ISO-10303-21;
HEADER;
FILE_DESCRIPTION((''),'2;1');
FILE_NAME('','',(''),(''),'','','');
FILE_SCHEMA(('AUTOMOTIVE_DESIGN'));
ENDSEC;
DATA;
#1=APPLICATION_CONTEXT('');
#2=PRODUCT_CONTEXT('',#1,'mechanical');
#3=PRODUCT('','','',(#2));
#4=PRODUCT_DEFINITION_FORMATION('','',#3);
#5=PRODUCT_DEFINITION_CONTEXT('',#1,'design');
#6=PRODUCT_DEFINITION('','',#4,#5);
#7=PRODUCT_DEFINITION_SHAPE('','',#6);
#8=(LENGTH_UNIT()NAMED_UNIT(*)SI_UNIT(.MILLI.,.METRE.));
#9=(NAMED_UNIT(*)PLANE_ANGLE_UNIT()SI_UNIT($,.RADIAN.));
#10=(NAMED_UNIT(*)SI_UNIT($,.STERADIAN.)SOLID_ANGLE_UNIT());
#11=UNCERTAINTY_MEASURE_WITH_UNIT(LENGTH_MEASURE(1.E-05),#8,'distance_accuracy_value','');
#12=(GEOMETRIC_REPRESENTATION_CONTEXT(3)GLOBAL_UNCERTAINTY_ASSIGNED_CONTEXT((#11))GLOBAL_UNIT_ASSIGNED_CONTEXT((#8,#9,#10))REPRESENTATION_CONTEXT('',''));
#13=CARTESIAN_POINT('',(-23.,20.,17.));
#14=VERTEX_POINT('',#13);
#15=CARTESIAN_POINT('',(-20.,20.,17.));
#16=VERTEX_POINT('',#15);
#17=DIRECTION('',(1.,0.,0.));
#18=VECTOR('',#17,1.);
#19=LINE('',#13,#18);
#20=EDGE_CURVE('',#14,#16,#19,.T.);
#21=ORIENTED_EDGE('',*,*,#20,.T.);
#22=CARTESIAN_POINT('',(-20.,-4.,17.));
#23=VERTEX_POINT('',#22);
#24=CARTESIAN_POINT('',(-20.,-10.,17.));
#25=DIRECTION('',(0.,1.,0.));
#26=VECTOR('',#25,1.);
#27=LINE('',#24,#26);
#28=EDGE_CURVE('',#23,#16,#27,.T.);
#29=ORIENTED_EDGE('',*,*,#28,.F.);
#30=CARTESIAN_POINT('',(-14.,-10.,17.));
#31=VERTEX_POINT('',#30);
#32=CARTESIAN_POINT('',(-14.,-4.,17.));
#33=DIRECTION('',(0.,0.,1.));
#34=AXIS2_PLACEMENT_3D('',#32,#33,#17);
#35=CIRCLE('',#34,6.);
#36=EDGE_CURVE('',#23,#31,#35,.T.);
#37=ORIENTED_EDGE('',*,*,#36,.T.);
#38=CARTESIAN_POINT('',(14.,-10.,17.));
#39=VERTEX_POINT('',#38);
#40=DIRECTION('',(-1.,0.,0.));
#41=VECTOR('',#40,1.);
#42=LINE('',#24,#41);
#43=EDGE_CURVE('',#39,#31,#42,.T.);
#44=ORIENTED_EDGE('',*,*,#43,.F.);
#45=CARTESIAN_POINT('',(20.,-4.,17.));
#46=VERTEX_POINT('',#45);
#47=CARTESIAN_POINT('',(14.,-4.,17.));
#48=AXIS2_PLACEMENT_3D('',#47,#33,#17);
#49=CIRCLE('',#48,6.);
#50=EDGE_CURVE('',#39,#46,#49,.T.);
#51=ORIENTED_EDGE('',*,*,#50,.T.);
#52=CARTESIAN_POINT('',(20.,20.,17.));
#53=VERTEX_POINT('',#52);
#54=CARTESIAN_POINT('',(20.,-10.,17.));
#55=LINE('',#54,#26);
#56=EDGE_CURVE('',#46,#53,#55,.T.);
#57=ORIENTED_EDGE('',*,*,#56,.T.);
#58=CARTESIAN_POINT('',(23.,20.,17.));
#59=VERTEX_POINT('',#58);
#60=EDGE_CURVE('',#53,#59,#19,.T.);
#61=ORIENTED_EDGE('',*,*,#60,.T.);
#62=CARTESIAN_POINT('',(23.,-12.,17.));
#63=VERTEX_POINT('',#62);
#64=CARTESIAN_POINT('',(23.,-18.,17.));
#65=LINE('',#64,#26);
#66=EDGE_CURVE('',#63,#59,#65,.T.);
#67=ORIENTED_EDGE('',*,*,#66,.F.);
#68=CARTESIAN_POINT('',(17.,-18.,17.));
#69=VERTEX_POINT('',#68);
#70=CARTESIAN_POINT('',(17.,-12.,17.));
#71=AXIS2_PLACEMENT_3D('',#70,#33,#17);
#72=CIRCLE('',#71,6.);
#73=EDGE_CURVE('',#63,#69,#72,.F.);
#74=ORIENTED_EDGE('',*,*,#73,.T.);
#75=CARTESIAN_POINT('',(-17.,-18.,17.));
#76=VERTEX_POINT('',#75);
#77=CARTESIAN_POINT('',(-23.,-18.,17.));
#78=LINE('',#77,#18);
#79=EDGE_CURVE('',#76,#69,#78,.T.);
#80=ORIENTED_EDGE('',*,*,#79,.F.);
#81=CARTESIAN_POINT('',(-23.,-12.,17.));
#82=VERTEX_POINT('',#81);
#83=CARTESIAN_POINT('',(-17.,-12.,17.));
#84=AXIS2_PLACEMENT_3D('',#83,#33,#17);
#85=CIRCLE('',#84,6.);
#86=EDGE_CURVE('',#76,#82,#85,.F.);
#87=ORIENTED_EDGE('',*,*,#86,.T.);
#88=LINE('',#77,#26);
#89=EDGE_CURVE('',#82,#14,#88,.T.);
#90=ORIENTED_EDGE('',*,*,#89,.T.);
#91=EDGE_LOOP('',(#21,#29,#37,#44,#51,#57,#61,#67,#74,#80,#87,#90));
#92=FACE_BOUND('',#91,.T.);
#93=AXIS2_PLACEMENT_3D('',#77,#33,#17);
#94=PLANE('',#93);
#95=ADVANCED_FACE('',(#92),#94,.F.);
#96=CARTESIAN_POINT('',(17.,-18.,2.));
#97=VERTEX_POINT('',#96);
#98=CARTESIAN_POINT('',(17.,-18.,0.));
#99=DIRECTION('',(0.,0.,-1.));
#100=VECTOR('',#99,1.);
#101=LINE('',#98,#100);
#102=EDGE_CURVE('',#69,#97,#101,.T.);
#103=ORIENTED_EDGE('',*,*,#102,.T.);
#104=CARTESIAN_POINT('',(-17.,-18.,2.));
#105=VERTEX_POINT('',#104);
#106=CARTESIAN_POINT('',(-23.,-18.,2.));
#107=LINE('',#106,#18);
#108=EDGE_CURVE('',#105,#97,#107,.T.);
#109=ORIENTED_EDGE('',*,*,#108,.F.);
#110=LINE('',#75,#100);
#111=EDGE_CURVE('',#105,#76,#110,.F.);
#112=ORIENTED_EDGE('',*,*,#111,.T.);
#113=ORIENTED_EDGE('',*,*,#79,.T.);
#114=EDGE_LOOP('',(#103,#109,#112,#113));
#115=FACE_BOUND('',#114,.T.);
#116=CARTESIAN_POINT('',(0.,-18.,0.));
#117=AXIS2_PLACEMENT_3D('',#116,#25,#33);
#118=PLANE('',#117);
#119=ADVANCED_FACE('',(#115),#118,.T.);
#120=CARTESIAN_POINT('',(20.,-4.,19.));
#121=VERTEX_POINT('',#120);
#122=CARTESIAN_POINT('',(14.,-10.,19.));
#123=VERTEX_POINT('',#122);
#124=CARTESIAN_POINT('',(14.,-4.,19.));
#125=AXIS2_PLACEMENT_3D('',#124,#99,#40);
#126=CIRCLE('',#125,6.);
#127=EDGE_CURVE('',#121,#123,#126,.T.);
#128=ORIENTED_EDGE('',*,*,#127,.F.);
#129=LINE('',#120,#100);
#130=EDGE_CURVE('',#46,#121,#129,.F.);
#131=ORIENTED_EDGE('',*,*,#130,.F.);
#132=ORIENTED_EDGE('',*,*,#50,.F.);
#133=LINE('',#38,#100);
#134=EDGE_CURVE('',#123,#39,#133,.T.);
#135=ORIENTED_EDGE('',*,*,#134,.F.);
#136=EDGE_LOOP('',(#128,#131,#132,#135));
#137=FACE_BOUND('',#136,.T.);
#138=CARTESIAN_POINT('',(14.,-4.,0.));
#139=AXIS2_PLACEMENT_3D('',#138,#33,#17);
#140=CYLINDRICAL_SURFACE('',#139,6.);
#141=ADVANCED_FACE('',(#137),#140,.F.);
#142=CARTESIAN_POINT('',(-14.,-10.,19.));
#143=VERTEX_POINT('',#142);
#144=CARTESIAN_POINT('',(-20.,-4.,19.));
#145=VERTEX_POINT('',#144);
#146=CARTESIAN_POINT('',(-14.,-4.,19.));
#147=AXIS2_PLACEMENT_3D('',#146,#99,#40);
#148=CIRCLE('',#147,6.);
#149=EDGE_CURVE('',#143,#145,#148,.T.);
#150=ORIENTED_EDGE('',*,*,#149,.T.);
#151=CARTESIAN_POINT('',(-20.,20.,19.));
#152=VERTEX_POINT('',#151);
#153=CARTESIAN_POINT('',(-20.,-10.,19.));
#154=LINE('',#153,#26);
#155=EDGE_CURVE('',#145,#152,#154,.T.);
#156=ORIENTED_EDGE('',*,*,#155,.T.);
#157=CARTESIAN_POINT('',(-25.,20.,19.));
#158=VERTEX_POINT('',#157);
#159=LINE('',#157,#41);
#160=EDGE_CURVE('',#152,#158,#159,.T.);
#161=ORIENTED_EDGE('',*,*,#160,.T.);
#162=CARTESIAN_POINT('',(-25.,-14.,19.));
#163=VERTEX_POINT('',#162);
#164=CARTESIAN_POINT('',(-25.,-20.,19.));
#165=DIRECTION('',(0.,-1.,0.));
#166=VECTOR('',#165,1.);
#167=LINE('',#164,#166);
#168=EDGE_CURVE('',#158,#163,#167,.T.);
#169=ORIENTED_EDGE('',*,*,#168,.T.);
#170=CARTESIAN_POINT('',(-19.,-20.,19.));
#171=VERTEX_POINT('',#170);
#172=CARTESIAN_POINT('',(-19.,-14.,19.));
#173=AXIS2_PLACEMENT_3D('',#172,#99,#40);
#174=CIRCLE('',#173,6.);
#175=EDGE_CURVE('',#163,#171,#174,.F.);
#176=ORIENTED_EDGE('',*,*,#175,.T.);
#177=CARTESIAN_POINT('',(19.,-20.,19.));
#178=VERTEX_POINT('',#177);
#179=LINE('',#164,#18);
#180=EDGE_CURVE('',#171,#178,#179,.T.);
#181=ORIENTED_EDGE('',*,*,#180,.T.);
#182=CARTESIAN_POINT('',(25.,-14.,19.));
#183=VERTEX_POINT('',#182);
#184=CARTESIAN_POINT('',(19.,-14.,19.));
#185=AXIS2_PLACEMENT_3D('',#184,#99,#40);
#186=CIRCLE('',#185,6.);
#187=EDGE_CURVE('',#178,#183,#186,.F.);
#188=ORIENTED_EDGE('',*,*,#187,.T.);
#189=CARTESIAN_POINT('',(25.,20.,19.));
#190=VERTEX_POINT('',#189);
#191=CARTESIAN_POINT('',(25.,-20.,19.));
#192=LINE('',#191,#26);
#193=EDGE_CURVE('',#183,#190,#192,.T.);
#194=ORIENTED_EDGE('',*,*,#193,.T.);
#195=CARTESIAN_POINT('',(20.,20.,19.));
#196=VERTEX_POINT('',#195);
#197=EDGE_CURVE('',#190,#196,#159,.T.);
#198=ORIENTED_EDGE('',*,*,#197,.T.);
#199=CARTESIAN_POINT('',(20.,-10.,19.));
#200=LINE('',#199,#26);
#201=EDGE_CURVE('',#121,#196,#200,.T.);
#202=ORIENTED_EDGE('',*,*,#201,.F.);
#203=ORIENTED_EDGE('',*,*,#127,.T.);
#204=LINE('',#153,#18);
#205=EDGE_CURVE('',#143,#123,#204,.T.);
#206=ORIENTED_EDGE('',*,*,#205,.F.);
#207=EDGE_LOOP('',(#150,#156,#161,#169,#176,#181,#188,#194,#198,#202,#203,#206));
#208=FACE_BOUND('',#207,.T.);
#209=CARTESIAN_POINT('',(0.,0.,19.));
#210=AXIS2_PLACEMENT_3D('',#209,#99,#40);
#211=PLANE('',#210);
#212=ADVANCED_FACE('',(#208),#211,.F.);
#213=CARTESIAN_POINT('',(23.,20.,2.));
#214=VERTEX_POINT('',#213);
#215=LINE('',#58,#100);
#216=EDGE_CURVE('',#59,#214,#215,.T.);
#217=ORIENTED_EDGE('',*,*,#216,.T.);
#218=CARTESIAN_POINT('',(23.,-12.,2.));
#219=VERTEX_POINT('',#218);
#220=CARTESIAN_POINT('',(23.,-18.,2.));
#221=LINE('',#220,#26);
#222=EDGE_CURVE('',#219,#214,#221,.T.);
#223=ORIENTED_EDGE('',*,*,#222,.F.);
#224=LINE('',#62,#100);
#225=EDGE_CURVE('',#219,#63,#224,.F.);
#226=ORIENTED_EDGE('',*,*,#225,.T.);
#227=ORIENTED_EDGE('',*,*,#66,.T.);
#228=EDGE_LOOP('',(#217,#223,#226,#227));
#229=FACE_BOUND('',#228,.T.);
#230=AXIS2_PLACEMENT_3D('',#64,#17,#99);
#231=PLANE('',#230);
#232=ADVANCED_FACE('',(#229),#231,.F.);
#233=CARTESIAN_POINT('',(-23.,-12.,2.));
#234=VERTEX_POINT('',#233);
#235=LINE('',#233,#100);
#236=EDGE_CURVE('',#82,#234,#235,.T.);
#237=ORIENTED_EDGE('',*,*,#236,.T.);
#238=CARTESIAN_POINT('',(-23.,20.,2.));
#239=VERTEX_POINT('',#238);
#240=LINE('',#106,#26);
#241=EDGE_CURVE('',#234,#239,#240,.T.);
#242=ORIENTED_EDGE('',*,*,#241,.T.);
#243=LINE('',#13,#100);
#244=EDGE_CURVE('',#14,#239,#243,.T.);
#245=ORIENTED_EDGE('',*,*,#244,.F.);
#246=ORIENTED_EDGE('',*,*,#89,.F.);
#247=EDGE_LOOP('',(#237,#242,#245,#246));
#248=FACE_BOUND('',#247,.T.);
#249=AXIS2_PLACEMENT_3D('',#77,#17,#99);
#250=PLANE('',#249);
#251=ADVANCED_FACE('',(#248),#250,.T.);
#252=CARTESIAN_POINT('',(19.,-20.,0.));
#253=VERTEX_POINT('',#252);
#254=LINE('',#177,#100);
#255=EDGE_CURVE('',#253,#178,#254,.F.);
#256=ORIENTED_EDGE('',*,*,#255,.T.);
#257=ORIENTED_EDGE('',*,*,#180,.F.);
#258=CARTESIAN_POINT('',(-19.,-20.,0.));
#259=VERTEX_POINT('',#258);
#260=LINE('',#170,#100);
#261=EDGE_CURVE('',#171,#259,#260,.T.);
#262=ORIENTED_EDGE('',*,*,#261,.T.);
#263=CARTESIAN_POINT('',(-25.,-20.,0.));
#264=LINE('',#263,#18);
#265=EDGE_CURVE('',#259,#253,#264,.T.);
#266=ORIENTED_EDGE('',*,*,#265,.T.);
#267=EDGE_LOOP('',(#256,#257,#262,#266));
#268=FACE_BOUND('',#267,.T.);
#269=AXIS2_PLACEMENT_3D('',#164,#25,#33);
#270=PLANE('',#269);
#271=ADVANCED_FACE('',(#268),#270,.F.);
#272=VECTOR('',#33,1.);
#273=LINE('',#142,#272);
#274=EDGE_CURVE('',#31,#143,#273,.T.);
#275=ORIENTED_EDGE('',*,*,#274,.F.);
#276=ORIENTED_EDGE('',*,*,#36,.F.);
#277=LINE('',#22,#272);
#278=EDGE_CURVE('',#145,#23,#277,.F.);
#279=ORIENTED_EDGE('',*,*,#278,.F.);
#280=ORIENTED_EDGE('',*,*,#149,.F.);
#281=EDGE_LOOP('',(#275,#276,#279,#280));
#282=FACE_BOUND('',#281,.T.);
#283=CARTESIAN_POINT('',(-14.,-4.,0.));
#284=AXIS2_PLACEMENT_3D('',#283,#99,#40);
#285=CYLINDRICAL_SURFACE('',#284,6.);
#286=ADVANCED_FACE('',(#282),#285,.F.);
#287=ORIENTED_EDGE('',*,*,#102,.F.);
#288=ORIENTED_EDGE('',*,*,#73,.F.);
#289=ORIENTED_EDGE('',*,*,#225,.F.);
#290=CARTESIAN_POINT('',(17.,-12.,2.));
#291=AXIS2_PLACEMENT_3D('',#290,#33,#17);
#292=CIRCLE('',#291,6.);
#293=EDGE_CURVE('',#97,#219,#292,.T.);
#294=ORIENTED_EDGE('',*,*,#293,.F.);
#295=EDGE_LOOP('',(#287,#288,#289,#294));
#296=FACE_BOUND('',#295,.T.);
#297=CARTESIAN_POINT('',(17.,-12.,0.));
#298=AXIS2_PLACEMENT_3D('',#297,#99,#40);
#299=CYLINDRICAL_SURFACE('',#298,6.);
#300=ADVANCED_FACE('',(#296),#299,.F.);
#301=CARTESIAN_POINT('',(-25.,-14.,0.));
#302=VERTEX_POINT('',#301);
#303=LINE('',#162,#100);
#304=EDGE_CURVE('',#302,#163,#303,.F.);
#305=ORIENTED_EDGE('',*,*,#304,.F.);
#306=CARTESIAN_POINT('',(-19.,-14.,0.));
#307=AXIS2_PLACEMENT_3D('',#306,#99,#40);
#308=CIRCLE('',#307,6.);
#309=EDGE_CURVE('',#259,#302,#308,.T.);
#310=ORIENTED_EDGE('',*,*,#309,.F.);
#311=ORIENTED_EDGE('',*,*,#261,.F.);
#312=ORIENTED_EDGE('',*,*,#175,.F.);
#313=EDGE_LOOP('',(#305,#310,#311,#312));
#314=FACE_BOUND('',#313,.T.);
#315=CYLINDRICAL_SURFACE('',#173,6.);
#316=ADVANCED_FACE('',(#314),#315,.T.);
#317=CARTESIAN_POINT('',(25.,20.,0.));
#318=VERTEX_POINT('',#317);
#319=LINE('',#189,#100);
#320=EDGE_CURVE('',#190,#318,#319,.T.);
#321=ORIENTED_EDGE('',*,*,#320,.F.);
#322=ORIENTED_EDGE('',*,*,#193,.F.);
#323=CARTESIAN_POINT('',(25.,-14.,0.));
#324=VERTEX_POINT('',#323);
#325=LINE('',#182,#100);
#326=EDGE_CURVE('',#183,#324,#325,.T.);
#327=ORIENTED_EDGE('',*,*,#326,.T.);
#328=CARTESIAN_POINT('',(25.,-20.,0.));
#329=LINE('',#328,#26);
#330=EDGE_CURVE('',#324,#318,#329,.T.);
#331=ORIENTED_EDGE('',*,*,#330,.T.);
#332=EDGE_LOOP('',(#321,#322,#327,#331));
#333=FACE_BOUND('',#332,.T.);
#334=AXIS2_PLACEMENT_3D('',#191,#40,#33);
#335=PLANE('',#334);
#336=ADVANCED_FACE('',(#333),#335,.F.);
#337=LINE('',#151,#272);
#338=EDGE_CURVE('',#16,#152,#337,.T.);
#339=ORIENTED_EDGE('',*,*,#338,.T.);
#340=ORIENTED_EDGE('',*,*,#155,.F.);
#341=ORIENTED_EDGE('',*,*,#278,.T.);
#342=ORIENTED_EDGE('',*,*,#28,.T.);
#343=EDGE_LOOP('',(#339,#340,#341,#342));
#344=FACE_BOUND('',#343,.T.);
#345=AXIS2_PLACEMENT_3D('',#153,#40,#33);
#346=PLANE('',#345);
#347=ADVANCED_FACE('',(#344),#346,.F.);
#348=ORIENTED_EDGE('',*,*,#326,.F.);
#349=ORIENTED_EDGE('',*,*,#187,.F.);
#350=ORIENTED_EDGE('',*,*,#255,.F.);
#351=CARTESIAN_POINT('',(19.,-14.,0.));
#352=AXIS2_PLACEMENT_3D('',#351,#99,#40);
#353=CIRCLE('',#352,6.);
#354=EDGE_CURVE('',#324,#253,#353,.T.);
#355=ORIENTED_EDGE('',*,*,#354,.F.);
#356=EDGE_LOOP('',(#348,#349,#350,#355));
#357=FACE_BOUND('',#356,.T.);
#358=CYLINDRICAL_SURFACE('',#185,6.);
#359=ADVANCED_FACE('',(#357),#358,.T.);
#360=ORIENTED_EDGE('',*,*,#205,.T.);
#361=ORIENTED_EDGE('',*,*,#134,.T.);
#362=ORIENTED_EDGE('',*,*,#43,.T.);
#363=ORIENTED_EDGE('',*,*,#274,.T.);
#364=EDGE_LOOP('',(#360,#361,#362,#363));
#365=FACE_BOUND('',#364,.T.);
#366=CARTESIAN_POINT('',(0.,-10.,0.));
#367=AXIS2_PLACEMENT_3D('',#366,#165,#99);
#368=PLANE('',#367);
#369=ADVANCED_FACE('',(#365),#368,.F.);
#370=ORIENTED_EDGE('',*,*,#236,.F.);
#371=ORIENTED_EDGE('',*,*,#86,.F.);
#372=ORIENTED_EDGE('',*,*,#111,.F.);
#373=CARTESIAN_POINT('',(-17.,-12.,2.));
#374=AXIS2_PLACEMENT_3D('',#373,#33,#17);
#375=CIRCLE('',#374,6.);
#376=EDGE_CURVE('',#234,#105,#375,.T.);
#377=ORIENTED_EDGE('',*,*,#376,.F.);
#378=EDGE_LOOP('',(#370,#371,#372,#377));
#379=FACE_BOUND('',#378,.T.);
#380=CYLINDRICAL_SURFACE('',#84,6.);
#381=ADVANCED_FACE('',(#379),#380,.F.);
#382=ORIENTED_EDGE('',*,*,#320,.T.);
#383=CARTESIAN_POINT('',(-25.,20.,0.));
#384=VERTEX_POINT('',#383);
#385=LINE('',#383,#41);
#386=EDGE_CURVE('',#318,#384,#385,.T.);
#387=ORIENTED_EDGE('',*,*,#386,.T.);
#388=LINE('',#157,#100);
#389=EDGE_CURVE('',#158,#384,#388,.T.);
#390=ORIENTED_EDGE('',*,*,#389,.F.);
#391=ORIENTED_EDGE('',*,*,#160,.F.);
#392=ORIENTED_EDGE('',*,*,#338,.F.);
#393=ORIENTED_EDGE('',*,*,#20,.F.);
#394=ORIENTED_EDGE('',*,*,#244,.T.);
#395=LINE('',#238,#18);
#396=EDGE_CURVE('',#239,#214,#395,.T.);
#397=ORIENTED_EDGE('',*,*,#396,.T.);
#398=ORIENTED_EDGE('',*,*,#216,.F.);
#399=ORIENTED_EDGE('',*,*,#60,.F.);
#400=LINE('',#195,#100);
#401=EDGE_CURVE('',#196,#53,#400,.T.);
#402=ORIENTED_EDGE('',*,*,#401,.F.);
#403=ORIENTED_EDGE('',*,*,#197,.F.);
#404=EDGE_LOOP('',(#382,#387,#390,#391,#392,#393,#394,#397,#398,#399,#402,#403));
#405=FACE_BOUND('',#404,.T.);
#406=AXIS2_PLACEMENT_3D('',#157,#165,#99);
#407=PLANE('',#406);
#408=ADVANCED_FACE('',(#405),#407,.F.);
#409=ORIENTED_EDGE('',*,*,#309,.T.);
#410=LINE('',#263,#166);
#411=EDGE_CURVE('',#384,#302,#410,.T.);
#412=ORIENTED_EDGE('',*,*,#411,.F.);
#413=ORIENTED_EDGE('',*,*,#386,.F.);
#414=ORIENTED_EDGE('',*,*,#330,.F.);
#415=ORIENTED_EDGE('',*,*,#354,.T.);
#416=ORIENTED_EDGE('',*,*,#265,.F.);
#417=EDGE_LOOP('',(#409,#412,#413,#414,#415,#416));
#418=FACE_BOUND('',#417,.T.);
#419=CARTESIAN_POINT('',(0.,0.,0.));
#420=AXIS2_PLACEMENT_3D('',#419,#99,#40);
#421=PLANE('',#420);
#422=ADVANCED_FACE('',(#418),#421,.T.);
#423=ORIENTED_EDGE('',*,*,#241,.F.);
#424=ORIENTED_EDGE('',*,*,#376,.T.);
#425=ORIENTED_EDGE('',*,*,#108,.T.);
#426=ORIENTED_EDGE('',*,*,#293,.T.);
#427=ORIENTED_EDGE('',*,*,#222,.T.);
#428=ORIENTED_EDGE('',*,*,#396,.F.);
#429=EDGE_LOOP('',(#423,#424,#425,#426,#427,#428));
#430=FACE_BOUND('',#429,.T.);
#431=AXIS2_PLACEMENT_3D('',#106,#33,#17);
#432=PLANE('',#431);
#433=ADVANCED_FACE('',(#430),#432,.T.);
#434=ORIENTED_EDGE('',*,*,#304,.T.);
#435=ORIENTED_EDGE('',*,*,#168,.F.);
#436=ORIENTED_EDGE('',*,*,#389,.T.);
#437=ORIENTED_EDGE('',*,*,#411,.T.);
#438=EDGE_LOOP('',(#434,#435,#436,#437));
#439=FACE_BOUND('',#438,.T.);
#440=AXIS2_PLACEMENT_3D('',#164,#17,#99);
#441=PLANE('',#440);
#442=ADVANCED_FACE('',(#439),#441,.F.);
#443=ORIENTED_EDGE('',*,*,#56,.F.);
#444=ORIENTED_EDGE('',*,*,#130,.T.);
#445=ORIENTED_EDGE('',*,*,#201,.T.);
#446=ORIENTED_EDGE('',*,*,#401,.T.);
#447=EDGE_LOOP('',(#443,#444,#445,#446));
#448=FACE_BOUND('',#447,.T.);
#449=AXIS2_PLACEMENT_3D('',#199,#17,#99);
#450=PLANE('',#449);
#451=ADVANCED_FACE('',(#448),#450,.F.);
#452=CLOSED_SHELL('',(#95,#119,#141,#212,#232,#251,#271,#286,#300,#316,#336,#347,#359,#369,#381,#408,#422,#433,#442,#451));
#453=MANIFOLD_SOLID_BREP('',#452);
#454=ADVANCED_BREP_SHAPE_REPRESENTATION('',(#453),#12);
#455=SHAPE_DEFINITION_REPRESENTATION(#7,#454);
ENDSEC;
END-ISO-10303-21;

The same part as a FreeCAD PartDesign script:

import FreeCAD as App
import Part
import Sketcher
from FreeCAD import Vector
Q = App.Units.Quantity


def edges_at(feature, points):
    """Names of the edges that pass closest to the given points."""
    edges = feature.Shape.Edges
    near = lambda p: min(range(len(edges)), key=lambda i: edges[i].distToShape(Part.Vertex(*p))[0])
    return sorted({f"Edge{near(p) + 1}" for p in points})


def add_polygon(sketch, points):
    """Adds a closed chain of lines whose ends are joined by coincident constraints."""
    first, n = sketch.GeometryCount, len(points)
    for a, b in zip(points, points[1:] + points[:1]):
        sketch.addGeometry(Part.LineSegment(App.Vector(*a, 0), App.Vector(*b, 0)), False)
    for i in range(n):
        sketch.addConstraint(Sketcher.Constraint("Coincident", first + i, 2, first + (i + 1) % n, 1))

doc = App.newDocument("Part")
body = doc.addObject("PartDesign::Body", "Body")

sketch1 = doc.addObject("Sketcher::SketchObject", "Sketch")
body.addObject(sketch1)
sketch1.AttachmentSupport = (doc.XY_Plane, [""])
sketch1.MapMode = "FlatFace"
add_polygon(sketch1, [(-25, 20), (-25, -20), (25, -20), (25, 20)])
sketch1.addConstraint(Sketcher.Constraint("Vertical", 0))
sketch1.addConstraint(Sketcher.Constraint("Horizontal", 1))
sketch1.addConstraint(Sketcher.Constraint("Vertical", 2))
sketch1.addConstraint(Sketcher.Constraint("Horizontal", 3))
sketch1.addConstraint(Sketcher.Constraint("Symmetric", 0, 2, 2, 2, -1, 1))
sketch1.addConstraint(Sketcher.Constraint("DistanceX", 1, 1, 1, 2, Q("50 mm")))
sketch1.addConstraint(Sketcher.Constraint("DistanceY", 0, 2, 0, 1, Q("40 mm")))
pad1 = doc.addObject("PartDesign::Pad", "Pad")
body.addObject(pad1)
pad1.Profile = sketch1
pad1.Length = 19

sketch2 = doc.addObject("Sketcher::SketchObject", "Sketch001")
body.addObject(sketch2)
sketch2.AttachmentSupport = (doc.XZ_Plane, [""])
sketch2.MapMode = "FlatFace"
sketch2.AttachmentOffset = App.Placement(Vector(0, 0, -20), App.Rotation())
add_polygon(sketch2, [(-23, 2), (-23, 17), (23, 17), (23, 2)])
sketch2.addConstraint(Sketcher.Constraint("Vertical", 0))
sketch2.addConstraint(Sketcher.Constraint("Horizontal", 1))
sketch2.addConstraint(Sketcher.Constraint("Vertical", 2))
sketch2.addConstraint(Sketcher.Constraint("Horizontal", 3))
sketch2.addConstraint(Sketcher.Constraint("DistanceX", 1, 1, 1, 2, Q("46 mm")))
sketch2.addConstraint(Sketcher.Constraint("DistanceY", 0, 1, 0, 2, Q("15 mm")))
sketch2.addConstraint(Sketcher.Constraint("DistanceX", 0, 2, -1, 1, Q("23 mm")))
sketch2.addConstraint(Sketcher.Constraint("DistanceY", -1, 1, 0, 2, Q("17 mm")))
pocket1 = doc.addObject("PartDesign::Pocket", "Pocket")
body.addObject(pocket1)
pocket1.Profile = sketch2
pocket1.Length = 38
pocket1.Reversed = True

sketch3 = doc.addObject("Sketcher::SketchObject", "Sketch002")
body.addObject(sketch3)
sketch3.AttachmentSupport = (doc.XZ_Plane, [""])
sketch3.MapMode = "FlatFace"
sketch3.AttachmentOffset = App.Placement(Vector(0, 0, -20), App.Rotation())
add_polygon(sketch3, [(-20, 17), (-20, 19), (20, 19), (20, 17)])
sketch3.addConstraint(Sketcher.Constraint("Vertical", 0))
sketch3.addConstraint(Sketcher.Constraint("Horizontal", 1))
sketch3.addConstraint(Sketcher.Constraint("Vertical", 2))
sketch3.addConstraint(Sketcher.Constraint("Horizontal", 3))
sketch3.addConstraint(Sketcher.Constraint("DistanceX", 1, 1, 1, 2, Q("40 mm")))
sketch3.addConstraint(Sketcher.Constraint("DistanceY", 0, 1, 0, 2, Q("2 mm")))
sketch3.addConstraint(Sketcher.Constraint("DistanceX", 0, 2, -1, 1, Q("20 mm")))
sketch3.addConstraint(Sketcher.Constraint("DistanceY", -1, 1, 0, 2, Q("19 mm")))
pocket2 = doc.addObject("PartDesign::Pocket", "Pocket001")
body.addObject(pocket2)
pocket2.Profile = sketch3
pocket2.Length = 30
pocket2.Reversed = True
doc.recompute()

fillet = doc.addObject("PartDesign::Fillet", "Fillet")
body.addObject(fillet)
fillet.Base = (pocket2, edges_at(pocket2, [
    (23, -18, 9.5),
    (-23, -18, 9.5),
    (20, -10, 18),
    (-20, -10, 18),
    (25, -20, 9.5),
    (-25, -20, 9.5),
]))
fillet.Radius = 6

doc.recompute()
